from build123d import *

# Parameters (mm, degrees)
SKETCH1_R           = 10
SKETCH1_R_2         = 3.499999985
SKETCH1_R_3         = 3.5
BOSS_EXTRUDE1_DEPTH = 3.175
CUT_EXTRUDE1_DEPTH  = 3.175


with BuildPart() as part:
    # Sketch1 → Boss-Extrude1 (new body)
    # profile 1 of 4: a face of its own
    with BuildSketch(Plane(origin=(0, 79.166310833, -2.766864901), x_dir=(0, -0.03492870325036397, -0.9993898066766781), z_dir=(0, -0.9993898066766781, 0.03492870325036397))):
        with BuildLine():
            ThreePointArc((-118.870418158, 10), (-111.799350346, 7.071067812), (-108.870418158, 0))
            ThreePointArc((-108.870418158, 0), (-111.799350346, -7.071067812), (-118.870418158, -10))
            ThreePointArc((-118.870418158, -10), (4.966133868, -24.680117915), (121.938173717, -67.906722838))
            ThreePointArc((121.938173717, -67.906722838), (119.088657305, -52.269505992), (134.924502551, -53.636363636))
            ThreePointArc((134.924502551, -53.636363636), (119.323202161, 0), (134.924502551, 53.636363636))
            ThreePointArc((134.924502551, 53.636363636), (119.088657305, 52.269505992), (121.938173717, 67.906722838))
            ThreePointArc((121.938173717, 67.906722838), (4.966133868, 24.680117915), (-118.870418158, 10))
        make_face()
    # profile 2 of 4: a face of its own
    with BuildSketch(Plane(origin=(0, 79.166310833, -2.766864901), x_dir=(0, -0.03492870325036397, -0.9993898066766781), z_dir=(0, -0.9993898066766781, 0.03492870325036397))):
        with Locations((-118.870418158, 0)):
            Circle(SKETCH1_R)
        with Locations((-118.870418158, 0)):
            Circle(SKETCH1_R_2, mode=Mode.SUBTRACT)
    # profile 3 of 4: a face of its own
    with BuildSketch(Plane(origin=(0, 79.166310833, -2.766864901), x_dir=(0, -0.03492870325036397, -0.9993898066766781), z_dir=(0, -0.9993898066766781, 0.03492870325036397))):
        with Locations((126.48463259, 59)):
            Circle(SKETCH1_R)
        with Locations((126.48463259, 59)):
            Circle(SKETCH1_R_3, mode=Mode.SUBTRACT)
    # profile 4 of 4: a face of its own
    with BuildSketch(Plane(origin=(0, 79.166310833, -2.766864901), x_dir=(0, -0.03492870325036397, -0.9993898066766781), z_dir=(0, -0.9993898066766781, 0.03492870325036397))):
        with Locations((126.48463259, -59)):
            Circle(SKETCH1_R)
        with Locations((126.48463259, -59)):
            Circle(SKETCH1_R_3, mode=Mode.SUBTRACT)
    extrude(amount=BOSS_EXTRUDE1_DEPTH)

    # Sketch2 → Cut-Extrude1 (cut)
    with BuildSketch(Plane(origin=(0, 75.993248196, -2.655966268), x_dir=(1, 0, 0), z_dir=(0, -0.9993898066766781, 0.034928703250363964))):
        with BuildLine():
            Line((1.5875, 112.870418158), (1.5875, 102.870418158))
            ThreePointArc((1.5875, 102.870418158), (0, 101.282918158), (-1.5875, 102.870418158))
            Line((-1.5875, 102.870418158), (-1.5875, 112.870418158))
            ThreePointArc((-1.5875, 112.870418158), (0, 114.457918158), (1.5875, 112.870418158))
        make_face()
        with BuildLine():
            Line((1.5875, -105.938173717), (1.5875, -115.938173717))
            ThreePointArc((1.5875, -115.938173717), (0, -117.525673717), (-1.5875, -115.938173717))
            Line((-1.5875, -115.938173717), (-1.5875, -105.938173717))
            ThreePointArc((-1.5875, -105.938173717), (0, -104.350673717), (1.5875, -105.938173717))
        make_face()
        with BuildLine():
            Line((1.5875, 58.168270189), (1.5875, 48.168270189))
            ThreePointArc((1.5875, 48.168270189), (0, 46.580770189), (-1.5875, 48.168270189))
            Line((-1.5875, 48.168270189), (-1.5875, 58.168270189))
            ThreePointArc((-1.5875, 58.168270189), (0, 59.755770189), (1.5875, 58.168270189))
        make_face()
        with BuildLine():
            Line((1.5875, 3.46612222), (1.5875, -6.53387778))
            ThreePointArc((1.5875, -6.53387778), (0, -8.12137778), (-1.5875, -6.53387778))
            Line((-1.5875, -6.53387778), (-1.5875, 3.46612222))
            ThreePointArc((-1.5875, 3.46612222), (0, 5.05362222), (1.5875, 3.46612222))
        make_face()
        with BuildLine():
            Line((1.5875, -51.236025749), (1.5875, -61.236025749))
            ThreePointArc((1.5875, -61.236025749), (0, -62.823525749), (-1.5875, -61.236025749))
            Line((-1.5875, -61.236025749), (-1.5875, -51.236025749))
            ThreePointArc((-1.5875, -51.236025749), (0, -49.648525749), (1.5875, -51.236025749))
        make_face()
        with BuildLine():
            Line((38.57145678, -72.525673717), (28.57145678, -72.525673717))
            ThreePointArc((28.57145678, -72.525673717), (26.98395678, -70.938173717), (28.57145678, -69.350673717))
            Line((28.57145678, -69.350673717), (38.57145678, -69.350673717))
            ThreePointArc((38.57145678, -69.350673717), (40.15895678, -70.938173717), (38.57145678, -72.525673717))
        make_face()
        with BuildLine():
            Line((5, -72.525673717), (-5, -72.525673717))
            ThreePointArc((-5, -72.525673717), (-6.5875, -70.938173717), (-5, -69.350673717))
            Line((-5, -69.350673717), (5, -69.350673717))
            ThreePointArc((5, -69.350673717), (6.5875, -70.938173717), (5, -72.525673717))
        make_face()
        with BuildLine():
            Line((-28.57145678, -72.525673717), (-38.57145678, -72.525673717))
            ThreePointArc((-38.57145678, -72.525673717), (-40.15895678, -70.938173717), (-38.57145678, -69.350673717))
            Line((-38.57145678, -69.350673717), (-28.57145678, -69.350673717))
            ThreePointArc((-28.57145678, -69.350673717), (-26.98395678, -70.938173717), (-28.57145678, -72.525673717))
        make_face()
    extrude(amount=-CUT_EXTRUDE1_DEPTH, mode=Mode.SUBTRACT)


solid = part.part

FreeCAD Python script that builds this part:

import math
import FreeCAD as App
import Part
import Sketcher

doc = App.newDocument("Part")
body = doc.addObject("PartDesign::Body", "Body")

sketch1 = body.newObject("Sketcher::SketchObject", "Sketch")
sketch1.Placement = App.Placement(App.Vector(0, 79.166311, -2.766865), App.Rotation(App.Vector(0, -0.034928703, -0.999389807), App.Vector(1.000000001, 0, 0), App.Vector(0, -0.999389807, 0.034928703), "ZXY"))
sketch1.addGeometry(Part.ArcOfCircle(Part.Circle(App.Vector(-118.9, -539.7, 0), App.Vector(0, 0, 1), 529.7), math.radians(63), math.radians(90)), False)
sketch1.addGeometry(Part.ArcOfCircle(Part.Circle(App.Vector(126.5, -59, 0), App.Vector(0, 0, 1), 10), math.radians(-117), math.radians(32)), False)
sketch1.addGeometry(Part.ArcOfCircle(Part.Circle(App.Vector(219.3, 0, 0), App.Vector(0, 0, 1), 100), math.radians(148), math.radians(212)), False)
sketch1.addGeometry(Part.ArcOfCircle(Part.Circle(App.Vector(126.5, 59, 0), App.Vector(0, 0, 1), 10), math.radians(-32), math.radians(117)), False)
sketch1.addGeometry(Part.ArcOfCircle(Part.Circle(App.Vector(-118.9, 539.7, 0), App.Vector(0, 0, 1), 529.7), math.radians(-90), math.radians(-63)), False)
sketch1.addGeometry(Part.ArcOfCircle(Part.Circle(App.Vector(-118.9, 0, 0), App.Vector(0, 0, 1), 10), math.radians(90), math.radians(270)), False)
sketch1.addGeometry(Part.Circle(App.Vector(-118.9, 0, 0), App.Vector(0, 0, 1), 3.5), False)
sketch1.addGeometry(Part.Circle(App.Vector(126.5, -59, 0), App.Vector(0, 0, 1), 3.5), False)
sketch1.addGeometry(Part.Circle(App.Vector(126.5, 59, 0), App.Vector(0, 0, 1), 3.5), False)
sketch1.addConstraint(Sketcher.Constraint("Tangent", 0, 1, 1, 1))
sketch1.addConstraint(Sketcher.Constraint("Tangent", 1, 2, 2, 2))
sketch1.addConstraint(Sketcher.Constraint("Tangent", 2, 1, 3, 1))
sketch1.addConstraint(Sketcher.Constraint("Tangent", 3, 2, 4, 2))
sketch1.addConstraint(Sketcher.Constraint("Tangent", 4, 1, 5, 1))
sketch1.addConstraint(Sketcher.Constraint("Tangent", 5, 2, 0, 2))
sketch1.addConstraint(Sketcher.Constraint("Coincident", 6, 3, 5, 3))
sketch1.addConstraint(Sketcher.Constraint("Coincident", 7, 3, 1, 3))
sketch1.addConstraint(Sketcher.Constraint("Coincident", 8, 3, 3, 3))
sketch1.addConstraint(Sketcher.Constraint("Equal", 1, 3))
sketch1.addConstraint(Sketcher.Constraint("Equal", 0, 4))
sketch1.addConstraint(Sketcher.Constraint("Equal", 3, 5))
sketch1.addConstraint(Sketcher.Constraint("Equal", 6, 7))
sketch1.addConstraint(Sketcher.Constraint("Equal", 7, 8))
sketch1.addConstraint(Sketcher.Constraint("Symmetric", 1, 3, 3, 3, -1))
sketch1.addConstraint(Sketcher.Constraint("PointOnObject", 5, 3, -1))
sketch1.addConstraint(Sketcher.Constraint("Vertical", 4, 3, 5, 3))
sketch1.addConstraint(Sketcher.Constraint("Diameter", 6, 7.0))
sketch1.addConstraint(Sketcher.Constraint("Radius", 1, 10.0))
sketch1.addConstraint(Sketcher.Constraint("Radius", 2, 100.0))
sketch1.addConstraint(Sketcher.Constraint("DistanceY", 1, 3, -1, 1, 59.0))
sketch1.addConstraint(Sketcher.Constraint("Radius", 0, 529.661872))
sketch1.addConstraint(Sketcher.Constraint("DistanceX", 0, 3, -1, 1, 118.870418))
pad1 = body.newObject("PartDesign::Pad", "Pad")
pad1.Profile = sketch1
pad1.Length = 3.175

sketch2 = body.newObject("Sketcher::SketchObject", "Sketch001")
sketch2.Placement = App.Placement(App.Vector(0, 75.993248, -2.655966), App.Rotation(App.Vector(1, 0, 0), App.Vector(0, 0.034928703, 0.999389807), App.Vector(0, -0.999389807, 0.034928703), "ZXY"))
sketch2.addGeometry(Part.LineSegment(App.Vector(1.6, 102.9, 0), App.Vector(1.6, 112.9, 0)), False)
sketch2.addGeometry(Part.ArcOfCircle(Part.Circle(App.Vector(0, 112.9, 0), App.Vector(0, 0, 1), 1.6), math.radians(0), math.radians(180)), False)
sketch2.addGeometry(Part.LineSegment(App.Vector(-1.6, 112.9, 0), App.Vector(-1.6, 102.9, 0)), False)
sketch2.addGeometry(Part.ArcOfCircle(Part.Circle(App.Vector(0, 102.9, 0), App.Vector(0, 0, 1), 1.6), math.radians(180), math.radians(360)), False)
sketch2.addGeometry(Part.LineSegment(App.Vector(1.6, -115.9, 0), App.Vector(1.6, -105.9, 0)), False)
sketch2.addGeometry(Part.ArcOfCircle(Part.Circle(App.Vector(0, -105.9, 0), App.Vector(0, 0, 1), 1.6), math.radians(0), math.radians(180)), False)
sketch2.addGeometry(Part.LineSegment(App.Vector(-1.6, -105.9, 0), App.Vector(-1.6, -115.9, 0)), False)
sketch2.addGeometry(Part.ArcOfCircle(Part.Circle(App.Vector(0, -115.9, 0), App.Vector(0, 0, 1), 1.6), math.radians(180), math.radians(360)), False)
sketch2.addGeometry(Part.LineSegment(App.Vector(1.6, 48.2, 0), App.Vector(1.6, 58.2, 0)), False)
sketch2.addGeometry(Part.ArcOfCircle(Part.Circle(App.Vector(0, 58.2, 0), App.Vector(0, 0, 1), 1.6), math.radians(0), math.radians(180)), False)
sketch2.addGeometry(Part.LineSegment(App.Vector(-1.6, 58.2, 0), App.Vector(-1.6, 48.2, 0)), False)
sketch2.addGeometry(Part.ArcOfCircle(Part.Circle(App.Vector(0, 48.2, 0), App.Vector(0, 0, 1), 1.6), math.radians(180), math.radians(360)), False)
sketch2.addGeometry(Part.LineSegment(App.Vector(1.6, -6.5, 0), App.Vector(1.6, 3.5, 0)), False)
sketch2.addGeometry(Part.ArcOfCircle(Part.Circle(App.Vector(0, 3.5, 0), App.Vector(0, 0, 1), 1.6), math.radians(0), math.radians(180)), False)
sketch2.addGeometry(Part.LineSegment(App.Vector(-1.6, 3.5, 0), App.Vector(-1.6, -6.5, 0)), False)
sketch2.addGeometry(Part.ArcOfCircle(Part.Circle(App.Vector(0, -6.5, 0), App.Vector(0, 0, 1), 1.6), math.radians(180), math.radians(360)), False)
sketch2.addGeometry(Part.LineSegment(App.Vector(1.6, -61.2, 0), App.Vector(1.6, -51.2, 0)), False)
sketch2.addGeometry(Part.ArcOfCircle(Part.Circle(App.Vector(0, -51.2, 0), App.Vector(0, 0, 1), 1.6), math.radians(0), math.radians(180)), False)
sketch2.addGeometry(Part.LineSegment(App.Vector(-1.6, -51.2, 0), App.Vector(-1.6, -61.2, 0)), False)
sketch2.addGeometry(Part.ArcOfCircle(Part.Circle(App.Vector(0, -61.2, 0), App.Vector(0, 0, 1), 1.6), math.radians(180), math.radians(360)), False)
sketch2.addGeometry(Part.LineSegment(App.Vector(28.6, -72.5, 0), App.Vector(38.6, -72.5, 0)), False)
sketch2.addGeometry(Part.ArcOfCircle(Part.Circle(App.Vector(38.6, -70.9, 0), App.Vector(0, 0, 1), 1.6), math.radians(-90), math.radians(90)), False)
sketch2.addGeometry(Part.LineSegment(App.Vector(38.6, -69.4, 0), App.Vector(28.6, -69.4, 0)), False)
sketch2.addGeometry(Part.ArcOfCircle(Part.Circle(App.Vector(28.6, -70.9, 0), App.Vector(0, 0, 1), 1.6), math.radians(90), math.radians(270)), False)
sketch2.addGeometry(Part.LineSegment(App.Vector(-5, -72.5, 0), App.Vector(5, -72.5, 0)), False)
sketch2.addGeometry(Part.ArcOfCircle(Part.Circle(App.Vector(5, -70.9, 0), App.Vector(0, 0, 1), 1.6), math.radians(-90), math.radians(90)), False)
sketch2.addGeometry(Part.LineSegment(App.Vector(5, -69.4, 0), App.Vector(-5, -69.4, 0)), False)
sketch2.addGeometry(Part.ArcOfCircle(Part.Circle(App.Vector(-5, -70.9, 0), App.Vector(0, 0, 1), 1.6), math.radians(90), math.radians(270)), False)
sketch2.addGeometry(Part.LineSegment(App.Vector(-38.6, -72.5, 0), App.Vector(-28.6, -72.5, 0)), False)
sketch2.addGeometry(Part.ArcOfCircle(Part.Circle(App.Vector(-28.6, -70.9, 0), App.Vector(0, 0, 1), 1.6), math.radians(-90), math.radians(90)), False)
sketch2.addGeometry(Part.LineSegment(App.Vector(-28.6, -69.4, 0), App.Vector(-38.6, -69.4, 0)), False)
sketch2.addGeometry(Part.ArcOfCircle(Part.Circle(App.Vector(-38.6, -70.9, 0), App.Vector(0, 0, 1), 1.6), math.radians(90), math.radians(270)), False)
sketch2.addConstraint(Sketcher.Constraint("Tangent", 0, 2, 1, 1))
sketch2.addConstraint(Sketcher.Constraint("Tangent", 1, 2, 2, 1))
sketch2.addConstraint(Sketcher.Constraint("Tangent", 2, 2, 3, 1))
sketch2.addConstraint(Sketcher.Constraint("Tangent", 3, 2, 0, 1))
sketch2.addConstraint(Sketcher.Constraint("Tangent", 4, 2, 5, 1))
sketch2.addConstraint(Sketcher.Constraint("Tangent", 5, 2, 6, 1))
sketch2.addConstraint(Sketcher.Constraint("Tangent", 6, 2, 7, 1))
sketch2.addConstraint(Sketcher.Constraint("Tangent", 7, 2, 4, 1))
sketch2.addConstraint(Sketcher.Constraint("Tangent", 8, 2, 9, 1))
sketch2.addConstraint(Sketcher.Constraint("Tangent", 9, 2, 10, 1))
sketch2.addConstraint(Sketcher.Constraint("Tangent", 10, 2, 11, 1))
sketch2.addConstraint(Sketcher.Constraint("Tangent", 11, 2, 8, 1))
sketch2.addConstraint(Sketcher.Constraint("Tangent", 12, 2, 13, 1))
sketch2.addConstraint(Sketcher.Constraint("Tangent", 13, 2, 14, 1))
sketch2.addConstraint(Sketcher.Constraint("Tangent", 14, 2, 15, 1))
sketch2.addConstraint(Sketcher.Constraint("Tangent", 15, 2, 12, 1))
sketch2.addConstraint(Sketcher.Constraint("Tangent", 16, 2, 17, 1))
sketch2.addConstraint(Sketcher.Constraint("Tangent", 17, 2, 18, 1))
sketch2.addConstraint(Sketcher.Constraint("Tangent", 18, 2, 19, 1))
sketch2.addConstraint(Sketcher.Constraint("Tangent", 19, 2, 16, 1))
sketch2.addConstraint(Sketcher.Constraint("Tangent", 20, 2, 21, 1))
sketch2.addConstraint(Sketcher.Constraint("Tangent", 21, 2, 22, 1))
sketch2.addConstraint(Sketcher.Constraint("Tangent", 22, 2, 23, 1))
sketch2.addConstraint(Sketcher.Constraint("Tangent", 23, 2, 20, 1))
sketch2.addConstraint(Sketcher.Constraint("Tangent", 24, 2, 25, 1))
sketch2.addConstraint(Sketcher.Constraint("Tangent", 25, 2, 26, 1))
sketch2.addConstraint(Sketcher.Constraint("Tangent", 26, 2, 27, 1))
sketch2.addConstraint(Sketcher.Constraint("Tangent", 27, 2, 24, 1))
sketch2.addConstraint(Sketcher.Constraint("Tangent", 28, 2, 29, 1))
sketch2.addConstraint(Sketcher.Constraint("Tangent", 29, 2, 30, 1))
sketch2.addConstraint(Sketcher.Constraint("Tangent", 30, 2, 31, 1))
sketch2.addConstraint(Sketcher.Constraint("Tangent", 31, 2, 28, 1))
sketch2.addConstraint(Sketcher.Constraint("Vertical", 0))
sketch2.addConstraint(Sketcher.Constraint("Vertical", 2))
sketch2.addConstraint(Sketcher.Constraint("Vertical", 4))
sketch2.addConstraint(Sketcher.Constraint("Vertical", 6))
sketch2.addConstraint(Sketcher.Constraint("Vertical", 8))
sketch2.addConstraint(Sketcher.Constraint("Vertical", 10))
sketch2.addConstraint(Sketcher.Constraint("Vertical", 12))
sketch2.addConstraint(Sketcher.Constraint("Vertical", 14))
sketch2.addConstraint(Sketcher.Constraint("Vertical", 16))
sketch2.addConstraint(Sketcher.Constraint("Vertical", 18))
sketch2.addConstraint(Sketcher.Constraint("Horizontal", 20))
sketch2.addConstraint(Sketcher.Constraint("Horizontal", 22))
sketch2.addConstraint(Sketcher.Constraint("Horizontal", 24))
sketch2.addConstraint(Sketcher.Constraint("Horizontal", 26))
sketch2.addConstraint(Sketcher.Constraint("Horizontal", 28))
sketch2.addConstraint(Sketcher.Constraint("Horizontal", 30))
sketch2.addConstraint(Sketcher.Constraint("Equal", 3, 5))
sketch2.addConstraint(Sketcher.Constraint("Equal", 7, 9))
sketch2.addConstraint(Sketcher.Constraint("Equal", 11, 13))
sketch2.addConstraint(Sketcher.Constraint("Equal", 15, 17))
sketch2.addConstraint(Sketcher.Constraint("Equal", 19, 21))
sketch2.addConstraint(Sketcher.Constraint("Equal", 23, 25))
sketch2.addConstraint(Sketcher.Constraint("Equal", 27, 29))
sketch2.addConstraint(Sketcher.Constraint("Symmetric", 23, 3, 29, 3, -2))
sketch2.addConstraint(Sketcher.Constraint("PointOnObject", 1, 3, -2))
sketch2.addConstraint(Sketcher.Constraint("PointOnObject", 5, 3, -2))
sketch2.addConstraint(Sketcher.Constraint("PointOnObject", 9, 3, -2))
sketch2.addConstraint(Sketcher.Constraint("PointOnObject", 13, 3, -2))
sketch2.addConstraint(Sketcher.Constraint("PointOnObject", 17, 3, -2))
sketch2.addConstraint(Sketcher.Constraint("Horizontal", 23, 3, 25, 3))
sketch2.addConstraint(Sketcher.Constraint("Equal", 22, 24))
sketch2.addConstraint(Sketcher.Constraint("Equal", 26, 28))
sketch2.addConstraint(Sketcher.Constraint("Equal", 30, 0))
sketch2.addConstraint(Sketcher.Constraint("Equal", 2, 4))
sketch2.addConstraint(Sketcher.Constraint("Equal", 6, 8))
sketch2.addConstraint(Sketcher.Constraint("Equal", 10, 12))
sketch2.addConstraint(Sketcher.Constraint("Equal", 14, 16))
sketch2.addConstraint(Sketcher.Constraint("DistanceX", 20, 1, 20, 2, 10.0))
sketch2.addConstraint(Sketcher.Constraint("DistanceX", -1, 1, 25, 3, 5.0))
sketch2.addConstraint(Sketcher.Constraint("DistanceY", 5, 3, 21, 3, 35.0))
sketch2.addConstraint(Sketcher.Constraint("Radius", 1, 1.5875))
sketch2.addConstraint(Sketcher.Constraint("DistanceY", -1, 1, 1, 3, 112.870418))
sketch2.addConstraint(Sketcher.Constraint("DistanceY", -1, 1, 9, 3, 58.16827))
sketch2.addConstraint(Sketcher.Constraint("DistanceY", 13, 3, 9, 3, 54.702148))
sketch2.addConstraint(Sketcher.Constraint("DistanceY", 5, 3, 17, 3, 54.702148))
sketch2.addConstraint(Sketcher.Constraint("DistanceY", 17, 3, 13, 3, 54.702148))
sketch2.addConstraint(Sketcher.Constraint("DistanceX", -1, 1, 21, 3, 38.571457))
pocket1 = body.newObject("PartDesign::Pocket", "Pocket")
pocket1.Profile = sketch2
pocket1.Length = 3.175

doc.recompute()
